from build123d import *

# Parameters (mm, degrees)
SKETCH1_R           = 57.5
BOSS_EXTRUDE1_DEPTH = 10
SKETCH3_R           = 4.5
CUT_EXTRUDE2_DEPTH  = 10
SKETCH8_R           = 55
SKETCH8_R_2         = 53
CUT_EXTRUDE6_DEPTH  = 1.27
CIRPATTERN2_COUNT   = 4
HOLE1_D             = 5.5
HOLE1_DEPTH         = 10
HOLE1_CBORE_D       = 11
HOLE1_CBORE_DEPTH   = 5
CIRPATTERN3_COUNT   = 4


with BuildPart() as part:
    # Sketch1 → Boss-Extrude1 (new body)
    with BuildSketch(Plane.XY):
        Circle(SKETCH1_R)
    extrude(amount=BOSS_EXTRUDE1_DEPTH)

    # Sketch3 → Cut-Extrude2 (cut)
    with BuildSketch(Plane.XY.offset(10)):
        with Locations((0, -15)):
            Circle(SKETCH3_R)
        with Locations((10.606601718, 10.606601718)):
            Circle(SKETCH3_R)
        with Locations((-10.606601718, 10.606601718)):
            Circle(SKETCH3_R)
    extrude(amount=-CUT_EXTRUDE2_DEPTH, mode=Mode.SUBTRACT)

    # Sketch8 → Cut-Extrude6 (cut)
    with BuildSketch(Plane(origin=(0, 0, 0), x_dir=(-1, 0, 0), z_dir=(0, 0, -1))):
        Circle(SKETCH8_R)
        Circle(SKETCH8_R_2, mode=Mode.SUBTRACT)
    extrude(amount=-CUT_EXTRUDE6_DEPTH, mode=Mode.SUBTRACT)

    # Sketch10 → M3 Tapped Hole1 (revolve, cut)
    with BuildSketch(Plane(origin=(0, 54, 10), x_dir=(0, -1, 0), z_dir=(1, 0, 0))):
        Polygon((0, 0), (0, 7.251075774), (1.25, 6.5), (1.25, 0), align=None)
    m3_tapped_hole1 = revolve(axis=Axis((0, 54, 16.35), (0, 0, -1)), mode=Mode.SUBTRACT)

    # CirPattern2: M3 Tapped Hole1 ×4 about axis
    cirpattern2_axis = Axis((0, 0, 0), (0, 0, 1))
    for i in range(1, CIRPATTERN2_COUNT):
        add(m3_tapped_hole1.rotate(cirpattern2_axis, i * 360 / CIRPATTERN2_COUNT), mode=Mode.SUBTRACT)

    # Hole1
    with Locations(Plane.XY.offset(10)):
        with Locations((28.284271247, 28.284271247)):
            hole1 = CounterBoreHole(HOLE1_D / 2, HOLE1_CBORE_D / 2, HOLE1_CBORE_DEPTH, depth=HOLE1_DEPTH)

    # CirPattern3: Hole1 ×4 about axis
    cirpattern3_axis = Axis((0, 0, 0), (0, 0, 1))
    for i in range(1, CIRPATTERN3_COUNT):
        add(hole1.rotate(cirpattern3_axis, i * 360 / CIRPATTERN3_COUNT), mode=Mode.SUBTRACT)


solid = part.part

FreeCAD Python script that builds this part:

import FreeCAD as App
import Part
import Sketcher

V = App.Vector
Q = App.Units.Quantity

doc = App.newDocument("Part")
params = doc.addObject("Spreadsheet::Sheet", "Params")
for row, (alias, value) in enumerate([
    ("sketch1_diameter", "115 mm"),
    ("pad1_length", "10 mm"),
    ("sketch2_diameter", "9 mm"),
    ("pocket1_length", "10 mm"),
    ("sketch3_diameter", "110 mm"),
    ("sketch3_diameter2", "106 mm"),
    ("pocket2_length", "1.27 mm"),
    ("sketch4_height", "6.5 mm"),
    ("sketch4_width", "1.25 mm"),
    ("groove_angle", "360 deg"),
    ("sketch5_diameter", "5.5 mm"),
    ("hole_diameter", "5.5 mm"),
    ("hole_depth", "10 mm"),
    ("hole_cbore_diameter", "11 mm"),
    ("hole_cbore_depth", "5 mm"),
], start=1):
    params.set(f"A{row}", alias)
    params.set(f"B{row}", "=" + value)
    params.setAlias(f"B{row}", alias)

body = doc.addObject("PartDesign::Body", "Body")

sketch1 = body.newObject("Sketcher::SketchObject", "Sketch")
sketch1.AttachmentSupport = (doc.getObject("XY_Plane"), [""])
sketch1.MapMode = "FlatFace"
sketch1.addGeometry(Part.Circle(V(0, 0, 0), V(0, 0, 1), 58), False)
sketch1.addConstraint(Sketcher.Constraint("Coincident", 0, 3, -1, 1))
sketch1.addConstraint(Sketcher.Constraint("Diameter", 0, Q("115 mm")))
sketch1.setExpression("Constraints[1]", "Params.sketch1_diameter")
pad1 = body.newObject("PartDesign::Pad", "Pad")
pad1.Profile = sketch1
pad1.setExpression("Length", "Params.pad1_length")

sketch2 = body.newObject("Sketcher::SketchObject", "Sketch001")
sketch2.AttachmentSupport = (doc.getObject("XY_Plane"), [""])
sketch2.MapMode = "FlatFace"
sketch2.AttachmentOffset = App.Placement(V(0, 0, 10), App.Rotation())
sketch2.addGeometry(Part.Circle(V(0, -15, 0), V(0, 0, 1), 4.5), False)
sketch2.addGeometry(Part.Circle(V(10.6, 10.6, 0), V(0, 0, 1), 4.5), False)
sketch2.addGeometry(Part.Circle(V(-10.6, 10.6, 0), V(0, 0, 1), 4.5), False)
sketch2.addConstraint(Sketcher.Constraint("Equal", 0, 1))
sketch2.addConstraint(Sketcher.Constraint("Equal", 1, 2))
sketch2.addConstraint(Sketcher.Constraint("Symmetric", 1, 3, 2, 3, -2))
sketch2.addConstraint(Sketcher.Constraint("PointOnObject", 0, 3, -2))
sketch2.addConstraint(Sketcher.Constraint("Diameter", 0, Q("9 mm")))
sketch2.addConstraint(Sketcher.Constraint("DistanceY", 0, 3, -1, 1, Q("15 mm")))
sketch2.addConstraint(Sketcher.Constraint("DistanceX", -1, 1, 1, 3, Q("10.606602 mm")))
sketch2.addConstraint(Sketcher.Constraint("DistanceY", -1, 1, 1, 3, Q("10.606602 mm")))
sketch2.setExpression("Constraints[4]", "Params.sketch2_diameter")
pocket1 = body.newObject("PartDesign::Pocket", "Pocket")
pocket1.Profile = sketch2
pocket1.setExpression("Length", "Params.pocket1_length")

sketch3 = body.newObject("Sketcher::SketchObject", "Sketch002")
sketch3.AttachmentSupport = (doc.getObject("XY_Plane"), [""])
sketch3.MapMode = "FlatFace"
sketch3.addGeometry(Part.Circle(V(0, 0, 0), V(0, 0, 1), 55), False)
sketch3.addGeometry(Part.Circle(V(0, 0, 0), V(0, 0, 1), 53), False)
sketch3.addConstraint(Sketcher.Constraint("Coincident", 0, 3, -1, 1))
sketch3.addConstraint(Sketcher.Constraint("Coincident", 1, 3, -1, 1))
sketch3.addConstraint(Sketcher.Constraint("Diameter", 0, Q("110 mm")))
sketch3.addConstraint(Sketcher.Constraint("Diameter", 1, Q("106 mm")))
sketch3.setExpression("Constraints[2]", "Params.sketch3_diameter")
sketch3.setExpression("Constraints[3]", "Params.sketch3_diameter2")
pocket2 = body.newObject("PartDesign::Pocket", "Pocket001")
pocket2.Profile = sketch3
pocket2.setExpression("Length", "Params.pocket2_length")
pocket2.Reversed = True

sketch4 = body.newObject("Sketcher::SketchObject", "Sketch003")
sketch4.AttachmentSupport = (doc.getObject("YZ_Plane"), [""])
sketch4.MapMode = "FlatFace"
sketch4.addGeometry(Part.LineSegment(V(54, 2.7, 0), V(54, 10, 0)), False)
sketch4.addGeometry(Part.LineSegment(V(54, 10, 0), V(52.8, 10, 0)), False)
sketch4.addGeometry(Part.LineSegment(V(52.8, 10, 0), V(52.8, 3.5, 0)), False)
sketch4.addGeometry(Part.LineSegment(V(52.8, 3.5, 0), V(54, 2.7, 0)), False)
sketch4.addGeometry(Part.LineSegment(V(54, 10, 0), V(54, 2.7, 0)), True)
sketch4.addConstraint(Sketcher.Constraint("Coincident", 0, 2, 1, 1))
sketch4.addConstraint(Sketcher.Constraint("Coincident", 1, 2, 2, 1))
sketch4.addConstraint(Sketcher.Constraint("Coincident", 2, 2, 3, 1))
sketch4.addConstraint(Sketcher.Constraint("Coincident", 3, 2, 0, 1))
sketch4.addConstraint(Sketcher.Constraint("Vertical", 0))
sketch4.addConstraint(Sketcher.Constraint("Horizontal", 1))
sketch4.addConstraint(Sketcher.Constraint("Vertical", 2))
sketch4.addConstraint(Sketcher.Constraint("Vertical", 4))
sketch4.addConstraint(Sketcher.Constraint("Coincident", 4, 1, 0, 2))
sketch4.addConstraint(Sketcher.Constraint("Equal", 0, 4))
sketch4.addConstraint(Sketcher.Constraint("Angle", 3, Q("-31 deg")))
sketch4.addConstraint(Sketcher.Constraint("DistanceY", 2, 2, 2, 1, Q("6.5 mm")))
sketch4.addConstraint(Sketcher.Constraint("DistanceX", -1, 1, 0, 2, Q("54 mm")))
sketch4.addConstraint(Sketcher.Constraint("DistanceY", -1, 1, 0, 2, Q("10 mm")))
sketch4.addConstraint(Sketcher.Constraint("DistanceX", 1, 2, 1, 1, Q("1.25 mm")))
sketch4.setExpression("Constraints[11]", "Params.sketch4_height")
sketch4.setExpression("Constraints[14]", "Params.sketch4_width")
groove = body.newObject("PartDesign::Groove", "Groove")
groove.Profile = sketch4
groove.ReferenceAxis = (sketch4, ["Axis0"])
groove.setExpression("Angle", "Params.groove_angle")
doc.recompute()

polarpattern = body.newObject("PartDesign::PolarPattern", "PolarPattern")
polarpattern.Originals = [groove]
polarpattern.Axis = (doc.getObject("Z_Axis"), [""])
polarpattern.Angle = 360
polarpattern.Occurrences = 4
body.Tip = polarpattern

sketch5 = body.newObject("Sketcher::SketchObject", "Sketch004")
sketch5.AttachmentSupport = (doc.getObject("XY_Plane"), [""])
sketch5.MapMode = "FlatFace"
sketch5.AttachmentOffset = App.Placement(V(0, 0, 10), App.Rotation())
sketch5.addGeometry(Part.Circle(V(28.3, 28.3, 0), V(0, 0, 1), 2.8), False)
sketch5.addConstraint(Sketcher.Constraint("Diameter", 0, Q("5.5 mm")))
sketch5.addConstraint(Sketcher.Constraint("DistanceX", -1, 1, 0, 3, Q("28.284271 mm")))
sketch5.addConstraint(Sketcher.Constraint("DistanceY", -1, 1, 0, 3, Q("28.284271 mm")))
sketch5.setExpression("Constraints[0]", "Params.sketch5_diameter")
doc.recompute()
hole = body.newObject("PartDesign::Hole", "Hole")
hole.Profile = sketch5
hole.ThreadType = "None"
hole.setExpression("Diameter", "Params.hole_diameter")
hole.DepthType = "Dimension"
hole.setExpression("Depth", "Params.hole_depth")
hole.DrillPoint = "Flat"
hole.HoleCutType = "Counterbore"
hole.setExpression("HoleCutDiameter", "Params.hole_cbore_diameter")
hole.setExpression("HoleCutDepth", "Params.hole_cbore_depth")
doc.recompute()

polarpattern2 = body.newObject("PartDesign::PolarPattern", "PolarPattern001")
polarpattern2.Originals = [hole]
polarpattern2.Axis = (doc.getObject("Z_Axis"), [""])
polarpattern2.Angle = 360
polarpattern2.Occurrences = 4
body.Tip = polarpattern2

doc.recompute()
